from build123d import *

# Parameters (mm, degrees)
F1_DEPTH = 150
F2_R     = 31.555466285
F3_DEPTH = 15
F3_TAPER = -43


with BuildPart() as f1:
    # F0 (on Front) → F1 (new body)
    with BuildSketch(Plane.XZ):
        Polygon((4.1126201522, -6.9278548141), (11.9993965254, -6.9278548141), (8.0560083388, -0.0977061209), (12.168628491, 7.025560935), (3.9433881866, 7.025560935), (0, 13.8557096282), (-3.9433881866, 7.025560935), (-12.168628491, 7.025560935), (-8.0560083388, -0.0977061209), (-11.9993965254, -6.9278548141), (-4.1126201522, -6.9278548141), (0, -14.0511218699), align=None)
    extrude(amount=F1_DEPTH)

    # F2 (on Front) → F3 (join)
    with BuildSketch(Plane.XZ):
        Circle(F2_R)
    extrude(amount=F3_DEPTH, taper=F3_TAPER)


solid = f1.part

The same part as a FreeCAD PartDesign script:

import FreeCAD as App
import Part
import Sketcher

V = App.Vector
Q = App.Units.Quantity

doc = App.newDocument("Part")
body = doc.addObject("PartDesign::Body", "Body")

# Sketch on XZ plane
sketch1 = body.newObject("Sketcher::SketchObject", "Sketch")
sketch1.AttachmentSupport = (doc.getObject("XZ_Plane"), [""])
sketch1.MapMode = "FlatFace"
sketch1.addGeometry([
    Part.LineSegment(V(4, -7, 0), V(12, -7, 0)),  # 0
    Part.LineSegment(V(12, -7, 0), V(8, 0, 0)),  # 1
    Part.LineSegment(V(8, 0, 0), V(12, 7, 0)),  # 2
    Part.LineSegment(V(12, 7, 0), V(4, 7, 0)),  # 3
    Part.LineSegment(V(4, 7, 0), V(0, 14, 0)),  # 4
    Part.LineSegment(V(0, 14, 0), V(-4, 7, 0)),  # 5
    Part.LineSegment(V(-4, 7, 0), V(-12, 7, 0)),  # 6
    Part.LineSegment(V(-12, 7, 0), V(-8, 0, 0)),  # 7
    Part.LineSegment(V(-8, 0, 0), V(-12, -7, 0)),  # 8
    Part.LineSegment(V(-12, -7, 0), V(-4, -7, 0)),  # 9
    Part.LineSegment(V(-4, -7, 0), V(0, -14, 0)),  # 10
    Part.LineSegment(V(0, -14, 0), V(4, -7, 0)),  # 11
], False)
sketch1.addConstraint([
    Sketcher.Constraint("Coincident", 0, 2, 1, 1),
    Sketcher.Constraint("Coincident", 1, 2, 2, 1),
    Sketcher.Constraint("Coincident", 2, 2, 3, 1),
    Sketcher.Constraint("Coincident", 3, 2, 4, 1),
    Sketcher.Constraint("Coincident", 4, 2, 5, 1),
    Sketcher.Constraint("Coincident", 5, 2, 6, 1),
    Sketcher.Constraint("Coincident", 6, 2, 7, 1),
    Sketcher.Constraint("Coincident", 7, 2, 8, 1),
    Sketcher.Constraint("Coincident", 8, 2, 9, 1),
    Sketcher.Constraint("Coincident", 9, 2, 10, 1),
    Sketcher.Constraint("Coincident", 10, 2, 11, 1),
    Sketcher.Constraint("Coincident", 11, 2, 0, 1),
    Sketcher.Constraint("Horizontal", 0),
    Sketcher.Constraint("Horizontal", 3),
    Sketcher.Constraint("Horizontal", 6),
    Sketcher.Constraint("Horizontal", 9),
    Sketcher.Constraint("Symmetric", 3, 2, 5, 2, -2),
    Sketcher.Constraint("Symmetric", 1, 2, 7, 2, -2),
    Sketcher.Constraint("Symmetric", 0, 2, 8, 2, -2),
    Sketcher.Constraint("PointOnObject", 4, 2, -2),
    Sketcher.Constraint("PointOnObject", 10, 2, -2),
    Sketcher.Constraint("Parallel", 1, 4),
    Sketcher.Constraint("Parallel", 2, 5),
    Sketcher.Constraint("Parallel", 4, 7),
    Sketcher.Constraint("Parallel", 7, 10),
    Sketcher.Constraint("Parallel", 8, 11),
    Sketcher.Constraint("Equal", 1, 4),
    Sketcher.Constraint("Equal", 7, 10),
    Sketcher.Constraint("Angle", 1, Q("120 deg")),
    Sketcher.Constraint("DistanceX", 3, 2, 3, 1, Q("8.22524 mm")),
    Sketcher.Constraint("Distance", 2, Q("8.22524 mm")),
    Sketcher.Constraint("DistanceX", 0, 1, 0, 2, Q("7.886776 mm")),
    Sketcher.Constraint("DistanceY", -1, 1, 2, 2, Q("7.025561 mm")),
])
pad1 = body.newObject("PartDesign::Pad", "Pad")
pad1.Profile = sketch1
pad1.Length = 150

# Sketch on XZ plane
sketch2 = body.newObject("Sketcher::SketchObject", "Sketch001")
sketch2.AttachmentSupport = (doc.getObject("XZ_Plane"), [""])
sketch2.MapMode = "FlatFace"
sketch2.addGeometry(Part.Circle(V(0, 0, 0), V(0, 0, 1), 32), False)
sketch2.addConstraint([
    Sketcher.Constraint("Coincident", 0, 3, -1, 1),
    Sketcher.Constraint("Diameter", 0, Q("63.110933 mm")),
])
pad2 = body.newObject("PartDesign::Pad", "Pad001")
pad2.Profile = sketch2
pad2.Length = 15
pad2.TaperAngle = 43

doc.recompute()
